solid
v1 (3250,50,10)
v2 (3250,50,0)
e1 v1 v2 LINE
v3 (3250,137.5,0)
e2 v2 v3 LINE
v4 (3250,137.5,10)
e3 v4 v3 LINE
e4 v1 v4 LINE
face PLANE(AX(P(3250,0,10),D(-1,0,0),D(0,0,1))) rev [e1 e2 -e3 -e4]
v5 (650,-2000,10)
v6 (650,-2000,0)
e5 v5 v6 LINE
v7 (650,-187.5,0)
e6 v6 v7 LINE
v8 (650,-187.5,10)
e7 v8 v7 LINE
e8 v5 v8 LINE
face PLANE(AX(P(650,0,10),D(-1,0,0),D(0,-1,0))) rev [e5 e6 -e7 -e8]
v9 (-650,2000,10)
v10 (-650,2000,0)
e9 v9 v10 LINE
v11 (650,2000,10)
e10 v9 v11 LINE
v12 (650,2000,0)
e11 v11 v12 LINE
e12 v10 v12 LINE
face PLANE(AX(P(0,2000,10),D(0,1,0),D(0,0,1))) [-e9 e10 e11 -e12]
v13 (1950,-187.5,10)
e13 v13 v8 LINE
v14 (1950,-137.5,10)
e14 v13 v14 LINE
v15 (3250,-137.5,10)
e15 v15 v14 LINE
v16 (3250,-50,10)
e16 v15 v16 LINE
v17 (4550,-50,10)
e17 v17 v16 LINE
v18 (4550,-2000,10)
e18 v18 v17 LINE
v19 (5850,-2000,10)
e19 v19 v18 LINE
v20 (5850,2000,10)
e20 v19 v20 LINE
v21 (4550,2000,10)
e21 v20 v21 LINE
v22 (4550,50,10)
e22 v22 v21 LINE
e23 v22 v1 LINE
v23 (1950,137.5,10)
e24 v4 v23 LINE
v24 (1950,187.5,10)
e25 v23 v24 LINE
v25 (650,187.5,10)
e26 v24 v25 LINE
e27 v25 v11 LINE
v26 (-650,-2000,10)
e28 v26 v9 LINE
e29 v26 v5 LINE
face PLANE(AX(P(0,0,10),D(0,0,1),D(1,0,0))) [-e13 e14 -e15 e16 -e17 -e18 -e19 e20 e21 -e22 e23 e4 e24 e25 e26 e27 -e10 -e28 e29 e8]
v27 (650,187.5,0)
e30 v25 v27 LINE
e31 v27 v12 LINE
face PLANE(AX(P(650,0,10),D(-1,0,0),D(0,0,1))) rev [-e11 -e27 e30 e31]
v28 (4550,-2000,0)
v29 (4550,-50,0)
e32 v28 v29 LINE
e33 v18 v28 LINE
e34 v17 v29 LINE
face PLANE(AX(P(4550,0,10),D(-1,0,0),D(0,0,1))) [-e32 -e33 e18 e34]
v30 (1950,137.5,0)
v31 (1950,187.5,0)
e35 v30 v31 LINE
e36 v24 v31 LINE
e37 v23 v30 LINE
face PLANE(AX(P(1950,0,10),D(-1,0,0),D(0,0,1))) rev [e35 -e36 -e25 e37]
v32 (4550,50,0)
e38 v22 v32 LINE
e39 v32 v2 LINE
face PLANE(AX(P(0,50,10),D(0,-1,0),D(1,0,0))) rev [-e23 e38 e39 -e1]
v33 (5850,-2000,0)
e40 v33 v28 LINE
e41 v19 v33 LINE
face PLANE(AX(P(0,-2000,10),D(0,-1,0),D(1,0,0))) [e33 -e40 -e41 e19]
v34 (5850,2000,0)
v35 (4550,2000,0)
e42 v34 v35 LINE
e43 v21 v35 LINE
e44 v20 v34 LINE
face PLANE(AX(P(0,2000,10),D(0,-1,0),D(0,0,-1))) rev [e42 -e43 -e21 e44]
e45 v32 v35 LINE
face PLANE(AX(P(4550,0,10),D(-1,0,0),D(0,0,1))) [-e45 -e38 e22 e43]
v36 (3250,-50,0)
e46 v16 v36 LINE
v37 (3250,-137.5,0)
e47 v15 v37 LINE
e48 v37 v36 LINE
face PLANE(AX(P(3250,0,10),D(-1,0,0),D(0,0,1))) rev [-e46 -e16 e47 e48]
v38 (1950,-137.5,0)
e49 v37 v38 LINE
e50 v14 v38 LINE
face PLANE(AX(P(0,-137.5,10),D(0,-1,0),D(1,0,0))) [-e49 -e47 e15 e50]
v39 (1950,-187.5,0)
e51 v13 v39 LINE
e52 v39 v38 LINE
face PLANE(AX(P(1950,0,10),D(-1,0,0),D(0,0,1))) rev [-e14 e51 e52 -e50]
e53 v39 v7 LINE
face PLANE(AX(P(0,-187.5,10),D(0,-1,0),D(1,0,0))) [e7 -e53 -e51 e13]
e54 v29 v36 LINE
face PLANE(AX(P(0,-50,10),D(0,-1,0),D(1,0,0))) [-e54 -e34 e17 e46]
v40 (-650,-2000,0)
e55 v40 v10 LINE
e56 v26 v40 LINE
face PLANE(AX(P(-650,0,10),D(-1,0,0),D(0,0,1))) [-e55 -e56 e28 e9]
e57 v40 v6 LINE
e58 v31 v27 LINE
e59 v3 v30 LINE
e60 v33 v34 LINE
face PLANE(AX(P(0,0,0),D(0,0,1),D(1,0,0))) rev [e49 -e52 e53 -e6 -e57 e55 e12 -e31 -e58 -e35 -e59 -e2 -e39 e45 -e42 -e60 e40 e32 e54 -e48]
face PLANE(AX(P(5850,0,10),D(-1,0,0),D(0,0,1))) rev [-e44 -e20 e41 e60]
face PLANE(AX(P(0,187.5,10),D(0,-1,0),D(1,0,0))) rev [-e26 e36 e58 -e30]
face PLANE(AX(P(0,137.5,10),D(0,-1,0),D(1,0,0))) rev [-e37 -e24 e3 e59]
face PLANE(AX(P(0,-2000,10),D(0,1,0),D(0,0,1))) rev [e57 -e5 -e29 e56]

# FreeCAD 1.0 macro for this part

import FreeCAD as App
import Part
import Sketcher

V = App.Vector
Q = App.Units.Quantity


def add_polygon(sketch, points):
    """Adds a closed chain of lines whose ends are joined by coincident constraints."""
    first, n = sketch.GeometryCount, len(points)
    for a, b in zip(points, points[1:] + points[:1]):
        sketch.addGeometry(Part.LineSegment(App.Vector(*a, 0), App.Vector(*b, 0)), False)
    for i in range(n):
        sketch.addConstraint(Sketcher.Constraint("Coincident", first + i, 2, first + (i + 1) % n, 1))

doc = App.newDocument("Part")
body = doc.addObject("PartDesign::Body", "Body")

# Sketch on XY plane
sketch1 = body.newObject("Sketcher::SketchObject", "Sketch")
sketch1.AttachmentSupport = (doc.getObject("XY_Plane"), [""])
sketch1.MapMode = "FlatFace"
add_polygon(sketch1, [(-650, -2000), (650, -2000), (650, -188), (1950, -188), (1950, -138), (3250, -138), (3250, -50), (4550, -50), (4550, -2000), (5850, -2000), (5850, 2000), (4550, 2000), (4550, 50), (3250, 50), (3250, 138), (1950, 138), (1950, 188), (650, 188), (650, 2000), (-650, 2000)])  # lines 0-19
sketch1.addConstraint([
    Sketcher.Constraint("Horizontal", 0),
    Sketcher.Constraint("Vertical", 1),
    Sketcher.Constraint("Horizontal", 2),
    Sketcher.Constraint("Vertical", 3),
    Sketcher.Constraint("Horizontal", 4),
    Sketcher.Constraint("Vertical", 5),
    Sketcher.Constraint("Horizontal", 6),
    Sketcher.Constraint("Vertical", 7),
    Sketcher.Constraint("Horizontal", 8),
    Sketcher.Constraint("Vertical", 9),
    Sketcher.Constraint("Horizontal", 10),
    Sketcher.Constraint("Vertical", 11),
    Sketcher.Constraint("Horizontal", 12),
    Sketcher.Constraint("Vertical", 13),
    Sketcher.Constraint("Horizontal", 14),
    Sketcher.Constraint("Vertical", 15),
    Sketcher.Constraint("Horizontal", 16),
    Sketcher.Constraint("Vertical", 17),
    Sketcher.Constraint("Horizontal", 18),
    Sketcher.Constraint("Vertical", 19),
    Sketcher.Constraint("Symmetric", 0, 2, 18, 2, -1, 1),
    Sketcher.Constraint("Symmetric", 7, 2, 10, 2, -1),
    Sketcher.Constraint("Symmetric", 5, 2, 12, 2, -1),
    Sketcher.Constraint("Symmetric", 3, 2, 14, 2, -1),
    Sketcher.Constraint("Symmetric", 1, 2, 16, 2, -1),
    Sketcher.Constraint("Horizontal", 0, 2, 7, 2),
    Sketcher.Constraint("Equal", 0, 2),
    Sketcher.Constraint("Equal", 2, 4),
    Sketcher.Constraint("Equal", 4, 6),
    Sketcher.Constraint("Equal", 6, 8),
    Sketcher.Constraint("DistanceX", 0, 1, 0, 2, Q("1300 mm")),
    Sketcher.Constraint("DistanceY", 3, 1, 3, 2, Q("50 mm")),
    Sketcher.Constraint("DistanceY", 7, 2, 7, 1, Q("1950 mm")),
    Sketcher.Constraint("DistanceY", 9, 1, 9, 2, Q("4000 mm")),
    Sketcher.Constraint("DistanceY", 1, 1, 1, 2, Q("1812.5 mm")),
])
pad1 = body.newObject("PartDesign::Pad", "Pad")
pad1.Profile = sketch1
pad1.Length = 10

doc.recompute()
